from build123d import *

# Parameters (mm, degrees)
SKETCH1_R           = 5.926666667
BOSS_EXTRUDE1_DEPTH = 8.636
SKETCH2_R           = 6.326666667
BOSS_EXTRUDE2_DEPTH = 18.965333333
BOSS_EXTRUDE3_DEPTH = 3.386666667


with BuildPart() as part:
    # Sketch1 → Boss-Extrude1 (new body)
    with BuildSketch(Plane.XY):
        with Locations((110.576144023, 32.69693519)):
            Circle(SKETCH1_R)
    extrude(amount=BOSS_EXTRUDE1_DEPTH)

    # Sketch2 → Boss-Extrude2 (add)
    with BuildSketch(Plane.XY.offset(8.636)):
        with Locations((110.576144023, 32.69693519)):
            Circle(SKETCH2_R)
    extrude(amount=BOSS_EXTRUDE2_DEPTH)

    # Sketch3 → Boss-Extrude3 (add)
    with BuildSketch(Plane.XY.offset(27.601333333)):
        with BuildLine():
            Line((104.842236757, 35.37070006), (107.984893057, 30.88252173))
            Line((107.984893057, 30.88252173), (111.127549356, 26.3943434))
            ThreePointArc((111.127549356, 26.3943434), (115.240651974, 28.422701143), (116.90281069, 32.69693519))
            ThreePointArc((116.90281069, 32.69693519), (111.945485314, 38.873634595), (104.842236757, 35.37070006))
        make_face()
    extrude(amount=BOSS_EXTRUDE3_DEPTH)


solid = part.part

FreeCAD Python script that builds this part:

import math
import FreeCAD as App
import Part
import Sketcher
from FreeCAD import Vector
Q = App.Units.Quantity

doc = App.newDocument("Part")
body = doc.addObject("PartDesign::Body", "Body")

# Sketch on XY plane
sketch1 = body.newObject("Sketcher::SketchObject", "Sketch")
sketch1.AttachmentSupport = (doc.getObject("XY_Plane"), [""])
sketch1.MapMode = "FlatFace"
sketch1.addGeometry(Part.Circle(Vector(111, 33, 0), Vector(0, 0, 1), 6), False)
sketch1.addConstraint(Sketcher.Constraint("Diameter", 0, Q("11.853333 mm")))
sketch1.addConstraint(Sketcher.Constraint("DistanceX", -1, 1, 0, 3, Q("110.576144 mm")))
sketch1.addConstraint(Sketcher.Constraint("DistanceY", -1, 1, 0, 3, Q("32.696935 mm")))
pad1 = body.newObject("PartDesign::Pad", "Pad")
pad1.Profile = sketch1
pad1.Length = Q("0.34 in")

# Sketch on XY plane
sketch2 = body.newObject("Sketcher::SketchObject", "Sketch001")
sketch2.AttachmentSupport = (doc.getObject("XY_Plane"), [""])
sketch2.MapMode = "FlatFace"
sketch2.AttachmentOffset = App.Placement(Vector(0, 0, 0.34 * 25.4), App.Rotation())
sketch2.addGeometry(Part.Circle(Vector(111, 33, 0), Vector(0, 0, 1), 6), False)
sketch2.addConstraint(Sketcher.Constraint("Diameter", 0, Q("12.653333 mm")))
sketch2.addConstraint(Sketcher.Constraint("DistanceX", -1, 1, 0, 3, Q("110.576144 mm")))
sketch2.addConstraint(Sketcher.Constraint("DistanceY", -1, 1, 0, 3, Q("32.696935 mm")))
pad2 = body.newObject("PartDesign::Pad", "Pad001")
pad2.Profile = sketch2
pad2.Length = 18.965333

# Sketch on XY plane
sketch3 = body.newObject("Sketcher::SketchObject", "Sketch002")
sketch3.AttachmentSupport = (doc.getObject("XY_Plane"), [""])
sketch3.MapMode = "FlatFace"
sketch3.AttachmentOffset = App.Placement(Vector(0, 0, 27.601333), App.Rotation())
sketch3.addGeometry(Part.LineSegment(Vector(105, 35, 0), Vector(108, 31, 0)), False)
sketch3.addGeometry(Part.LineSegment(Vector(108, 31, 0), Vector(111, 26, 0)), False)
sketch3.addGeometry(Part.ArcOfCircle(Part.Circle(Vector(111, 33, 0), Vector(0, 0, 1), 6), math.radians(-85), math.radians(0)), False)
sketch3.addGeometry(Part.ArcOfCircle(Part.Circle(Vector(111, 33, 0), Vector(0, 0, 1), 6), math.radians(0), math.radians(155)), False)
sketch3.addConstraint(Sketcher.Constraint("Coincident", 0, 2, 1, 1))
sketch3.addConstraint(Sketcher.Constraint("Coincident", 1, 2, 2, 1))
sketch3.addConstraint(Sketcher.Constraint("Tangent", 2, 2, 3, 1))
sketch3.addConstraint(Sketcher.Constraint("Coincident", 3, 2, 0, 1))
sketch3.addConstraint(Sketcher.Constraint("Equal", 2, 3))
sketch3.addConstraint(Sketcher.Constraint("Parallel", 0, 1))
sketch3.addConstraint(Sketcher.Constraint("Horizontal", 3, 3, 2, 2))
sketch3.addConstraint(Sketcher.Constraint("Equal", 0, 1))
sketch3.addConstraint(Sketcher.Constraint("Angle", 0, Q("-55 deg")))
sketch3.addConstraint(Sketcher.Constraint("Radius", 2, Q("6.326667 mm")))
sketch3.addConstraint(Sketcher.Constraint("DistanceY", 1, 2, 0, 2, Q("0.1766999 in")))
sketch3.addConstraint(Sketcher.Constraint("DistanceY", -1, 1, 3, 2, Q("35.3707 mm")))
sketch3.addConstraint(Sketcher.Constraint("DistanceX", -1, 1, 1, 2, Q("111.127549 mm")))
pad3 = body.newObject("PartDesign::Pad", "Pad002")
pad3.Profile = sketch3
pad3.Length = 3.386667

doc.recompute()
